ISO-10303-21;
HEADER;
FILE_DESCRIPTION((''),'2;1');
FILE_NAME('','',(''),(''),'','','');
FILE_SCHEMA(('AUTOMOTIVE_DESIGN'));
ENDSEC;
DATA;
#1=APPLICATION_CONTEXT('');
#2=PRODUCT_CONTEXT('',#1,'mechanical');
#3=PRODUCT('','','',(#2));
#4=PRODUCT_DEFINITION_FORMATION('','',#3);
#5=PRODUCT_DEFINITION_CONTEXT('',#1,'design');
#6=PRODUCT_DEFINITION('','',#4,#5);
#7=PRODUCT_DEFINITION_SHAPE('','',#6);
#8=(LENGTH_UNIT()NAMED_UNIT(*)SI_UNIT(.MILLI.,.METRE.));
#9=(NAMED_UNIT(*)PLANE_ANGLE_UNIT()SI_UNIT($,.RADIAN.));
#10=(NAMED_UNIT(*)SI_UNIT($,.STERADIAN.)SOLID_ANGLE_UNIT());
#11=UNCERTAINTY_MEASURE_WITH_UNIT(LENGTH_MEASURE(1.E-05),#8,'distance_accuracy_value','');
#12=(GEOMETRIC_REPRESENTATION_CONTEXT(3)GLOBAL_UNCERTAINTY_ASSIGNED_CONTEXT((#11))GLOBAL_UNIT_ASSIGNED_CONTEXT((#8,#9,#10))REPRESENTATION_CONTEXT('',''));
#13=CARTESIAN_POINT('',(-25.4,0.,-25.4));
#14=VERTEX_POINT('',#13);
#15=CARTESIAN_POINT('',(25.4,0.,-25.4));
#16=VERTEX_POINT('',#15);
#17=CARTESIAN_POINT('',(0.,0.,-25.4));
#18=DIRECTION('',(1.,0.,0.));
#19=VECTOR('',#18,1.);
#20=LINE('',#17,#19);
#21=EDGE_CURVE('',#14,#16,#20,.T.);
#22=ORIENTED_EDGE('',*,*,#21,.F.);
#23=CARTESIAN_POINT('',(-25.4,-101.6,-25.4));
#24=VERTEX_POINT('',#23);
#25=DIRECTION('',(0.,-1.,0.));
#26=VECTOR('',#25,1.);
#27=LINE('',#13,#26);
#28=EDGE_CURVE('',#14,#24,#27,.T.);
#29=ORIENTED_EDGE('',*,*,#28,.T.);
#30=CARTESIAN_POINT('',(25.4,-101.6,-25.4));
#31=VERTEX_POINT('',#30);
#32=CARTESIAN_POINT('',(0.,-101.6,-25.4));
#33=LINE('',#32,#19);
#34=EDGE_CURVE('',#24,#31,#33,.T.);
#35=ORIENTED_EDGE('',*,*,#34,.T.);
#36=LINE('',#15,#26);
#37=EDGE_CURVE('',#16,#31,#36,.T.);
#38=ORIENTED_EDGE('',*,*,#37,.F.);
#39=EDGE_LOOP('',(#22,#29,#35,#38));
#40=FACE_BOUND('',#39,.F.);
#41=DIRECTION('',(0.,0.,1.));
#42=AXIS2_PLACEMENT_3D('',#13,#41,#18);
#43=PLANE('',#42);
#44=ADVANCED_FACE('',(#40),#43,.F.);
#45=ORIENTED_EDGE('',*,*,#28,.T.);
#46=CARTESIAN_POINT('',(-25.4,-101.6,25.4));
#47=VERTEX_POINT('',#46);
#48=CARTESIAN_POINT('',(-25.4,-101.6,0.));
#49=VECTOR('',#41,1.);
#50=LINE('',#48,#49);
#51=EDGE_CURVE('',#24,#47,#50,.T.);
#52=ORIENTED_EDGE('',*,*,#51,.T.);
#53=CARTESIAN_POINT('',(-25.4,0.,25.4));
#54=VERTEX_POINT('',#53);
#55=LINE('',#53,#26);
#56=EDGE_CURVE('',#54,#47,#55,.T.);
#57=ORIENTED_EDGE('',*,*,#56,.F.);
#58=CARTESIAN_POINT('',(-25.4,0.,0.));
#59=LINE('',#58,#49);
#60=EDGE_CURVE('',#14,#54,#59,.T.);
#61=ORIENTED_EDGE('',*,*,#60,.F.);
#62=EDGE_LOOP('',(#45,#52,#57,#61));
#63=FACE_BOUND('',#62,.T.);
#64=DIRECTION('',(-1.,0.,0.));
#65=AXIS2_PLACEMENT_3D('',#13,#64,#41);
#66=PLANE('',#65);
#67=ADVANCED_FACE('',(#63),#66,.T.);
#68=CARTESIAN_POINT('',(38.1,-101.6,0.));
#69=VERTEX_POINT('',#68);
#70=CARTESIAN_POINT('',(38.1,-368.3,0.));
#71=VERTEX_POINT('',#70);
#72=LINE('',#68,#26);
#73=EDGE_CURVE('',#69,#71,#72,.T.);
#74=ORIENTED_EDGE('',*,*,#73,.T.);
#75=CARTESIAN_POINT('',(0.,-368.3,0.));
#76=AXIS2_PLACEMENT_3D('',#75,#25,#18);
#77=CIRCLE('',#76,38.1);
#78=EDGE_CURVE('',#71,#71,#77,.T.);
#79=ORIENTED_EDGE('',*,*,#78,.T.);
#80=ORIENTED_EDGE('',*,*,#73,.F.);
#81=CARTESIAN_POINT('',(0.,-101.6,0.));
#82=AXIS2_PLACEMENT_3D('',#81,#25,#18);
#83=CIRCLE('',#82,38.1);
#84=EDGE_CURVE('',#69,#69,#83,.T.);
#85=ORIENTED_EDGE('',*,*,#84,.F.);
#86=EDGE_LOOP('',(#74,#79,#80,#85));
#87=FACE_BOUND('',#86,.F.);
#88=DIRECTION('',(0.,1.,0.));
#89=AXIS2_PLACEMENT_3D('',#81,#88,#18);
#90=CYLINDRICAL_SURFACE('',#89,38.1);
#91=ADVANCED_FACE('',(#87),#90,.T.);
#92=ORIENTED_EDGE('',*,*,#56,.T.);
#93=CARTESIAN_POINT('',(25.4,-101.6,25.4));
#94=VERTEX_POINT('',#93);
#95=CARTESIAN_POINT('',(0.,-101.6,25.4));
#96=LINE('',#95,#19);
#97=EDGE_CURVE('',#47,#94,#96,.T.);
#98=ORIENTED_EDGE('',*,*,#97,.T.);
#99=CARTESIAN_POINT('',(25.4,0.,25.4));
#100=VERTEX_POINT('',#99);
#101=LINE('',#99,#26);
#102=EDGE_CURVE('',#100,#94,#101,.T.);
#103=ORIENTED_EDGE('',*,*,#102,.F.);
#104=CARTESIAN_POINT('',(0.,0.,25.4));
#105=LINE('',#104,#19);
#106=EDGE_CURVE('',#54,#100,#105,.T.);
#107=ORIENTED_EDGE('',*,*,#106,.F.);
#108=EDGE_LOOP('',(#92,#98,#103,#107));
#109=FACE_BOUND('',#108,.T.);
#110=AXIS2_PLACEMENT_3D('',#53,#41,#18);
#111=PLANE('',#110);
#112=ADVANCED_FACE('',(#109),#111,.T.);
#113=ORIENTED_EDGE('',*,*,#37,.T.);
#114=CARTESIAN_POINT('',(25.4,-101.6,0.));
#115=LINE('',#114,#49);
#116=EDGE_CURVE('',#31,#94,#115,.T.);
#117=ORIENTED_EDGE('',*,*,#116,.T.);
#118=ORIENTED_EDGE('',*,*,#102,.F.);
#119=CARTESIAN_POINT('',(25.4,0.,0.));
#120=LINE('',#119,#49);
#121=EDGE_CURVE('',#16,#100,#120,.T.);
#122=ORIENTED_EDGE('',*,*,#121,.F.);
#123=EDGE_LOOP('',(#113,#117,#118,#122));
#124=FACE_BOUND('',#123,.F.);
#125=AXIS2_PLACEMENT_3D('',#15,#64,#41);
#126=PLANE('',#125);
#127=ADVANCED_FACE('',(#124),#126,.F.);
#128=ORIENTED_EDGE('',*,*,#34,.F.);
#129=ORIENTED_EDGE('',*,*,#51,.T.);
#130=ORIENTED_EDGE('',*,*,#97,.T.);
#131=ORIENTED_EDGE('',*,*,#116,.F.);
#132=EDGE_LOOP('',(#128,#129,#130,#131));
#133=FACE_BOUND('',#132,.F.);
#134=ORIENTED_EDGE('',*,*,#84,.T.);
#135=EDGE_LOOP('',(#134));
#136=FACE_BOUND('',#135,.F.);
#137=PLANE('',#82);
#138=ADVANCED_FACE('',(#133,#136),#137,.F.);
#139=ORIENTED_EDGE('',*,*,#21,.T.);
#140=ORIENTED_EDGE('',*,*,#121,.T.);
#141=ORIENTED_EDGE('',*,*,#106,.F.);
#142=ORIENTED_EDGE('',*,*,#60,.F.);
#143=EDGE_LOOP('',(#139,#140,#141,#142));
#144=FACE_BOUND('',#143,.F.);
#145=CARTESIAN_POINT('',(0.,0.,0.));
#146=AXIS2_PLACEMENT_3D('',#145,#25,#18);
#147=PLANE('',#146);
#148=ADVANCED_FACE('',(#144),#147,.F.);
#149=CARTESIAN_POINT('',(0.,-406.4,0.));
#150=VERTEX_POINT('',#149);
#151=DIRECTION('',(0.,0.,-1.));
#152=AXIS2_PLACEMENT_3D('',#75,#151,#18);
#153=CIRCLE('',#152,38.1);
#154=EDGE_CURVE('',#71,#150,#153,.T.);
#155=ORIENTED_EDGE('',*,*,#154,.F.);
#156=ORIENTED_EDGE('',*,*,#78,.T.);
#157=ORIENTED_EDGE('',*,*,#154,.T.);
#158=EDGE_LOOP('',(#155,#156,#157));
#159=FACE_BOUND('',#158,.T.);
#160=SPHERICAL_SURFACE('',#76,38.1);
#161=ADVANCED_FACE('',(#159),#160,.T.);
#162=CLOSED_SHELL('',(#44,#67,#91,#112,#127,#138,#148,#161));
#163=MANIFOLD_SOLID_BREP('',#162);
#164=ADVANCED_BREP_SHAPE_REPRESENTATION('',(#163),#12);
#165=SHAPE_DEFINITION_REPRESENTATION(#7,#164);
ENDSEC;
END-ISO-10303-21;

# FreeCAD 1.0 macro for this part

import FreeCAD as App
import Part
import Sketcher
Q = App.Units.Quantity


def edges_at(feature, points):
    """Names of the edges that pass closest to the given points."""
    edges = feature.Shape.Edges
    near = lambda p: min(range(len(edges)), key=lambda i: edges[i].distToShape(Part.Vertex(*p))[0])
    return sorted({f"Edge{near(p) + 1}" for p in points})


def add_polygon(sketch, points):
    """Adds a closed chain of lines whose ends are joined by coincident constraints."""
    first, n = sketch.GeometryCount, len(points)
    for a, b in zip(points, points[1:] + points[:1]):
        sketch.addGeometry(Part.LineSegment(App.Vector(*a, 0), App.Vector(*b, 0)), False)
    for i in range(n):
        sketch.addConstraint(Sketcher.Constraint("Coincident", first + i, 2, first + (i + 1) % n, 1))

doc = App.newDocument("Part")
body = doc.addObject("PartDesign::Body", "Body")

sketch1 = body.newObject("Sketcher::SketchObject", "Sketch")
sketch1.AttachmentSupport = (doc.getObject("XZ_Plane"), [""])
sketch1.MapMode = "FlatFace"
add_polygon(sketch1, [(-25.4, 25.4), (-25.4, -25.4), (25.4, -25.4), (25.4, 25.4)])
sketch1.addConstraint([
    Sketcher.Constraint("Vertical", 0),
    Sketcher.Constraint("Horizontal", 1),
    Sketcher.Constraint("Vertical", 2),
    Sketcher.Constraint("Horizontal", 3),
    Sketcher.Constraint("Symmetric", 0, 2, 2, 2, -1, 1),
    Sketcher.Constraint("Equal", 3, 0),
    Sketcher.Constraint("DistanceX", 1, 1, 1, 2, Q("2 in")),
])
pad1 = body.newObject("PartDesign::Pad", "Pad")
pad1.Profile = sketch1
pad1.Length = Q("4 in")

sketch2 = body.newObject("Sketcher::SketchObject", "Sketch001")
sketch2.AttachmentSupport = (doc.getObject("XZ_Plane"), [""])
sketch2.MapMode = "FlatFace"
sketch2.AttachmentOffset = App.Placement(App.Vector(0, 0, 4 * 25.4), App.Rotation())
sketch2.addGeometry(Part.Circle(App.Vector(0, 0, 0), App.Vector(0, 0, 1), 38.1), False)
sketch2.addConstraint([
    Sketcher.Constraint("Coincident", 0, 3, -1, 1),
    Sketcher.Constraint("Diameter", 0, Q("3 in")),
])
pad2 = body.newObject("PartDesign::Pad", "Pad001")
pad2.Profile = sketch2
pad2.Length = Q("12 in")
doc.recompute()

fillet = body.newObject("PartDesign::Fillet", "Fillet")
fillet.Base = (pad2, edges_at(pad2, [(-38.1, -406.4, 0)]))
fillet.Radius = Q("1.5 in")

doc.recompute()
